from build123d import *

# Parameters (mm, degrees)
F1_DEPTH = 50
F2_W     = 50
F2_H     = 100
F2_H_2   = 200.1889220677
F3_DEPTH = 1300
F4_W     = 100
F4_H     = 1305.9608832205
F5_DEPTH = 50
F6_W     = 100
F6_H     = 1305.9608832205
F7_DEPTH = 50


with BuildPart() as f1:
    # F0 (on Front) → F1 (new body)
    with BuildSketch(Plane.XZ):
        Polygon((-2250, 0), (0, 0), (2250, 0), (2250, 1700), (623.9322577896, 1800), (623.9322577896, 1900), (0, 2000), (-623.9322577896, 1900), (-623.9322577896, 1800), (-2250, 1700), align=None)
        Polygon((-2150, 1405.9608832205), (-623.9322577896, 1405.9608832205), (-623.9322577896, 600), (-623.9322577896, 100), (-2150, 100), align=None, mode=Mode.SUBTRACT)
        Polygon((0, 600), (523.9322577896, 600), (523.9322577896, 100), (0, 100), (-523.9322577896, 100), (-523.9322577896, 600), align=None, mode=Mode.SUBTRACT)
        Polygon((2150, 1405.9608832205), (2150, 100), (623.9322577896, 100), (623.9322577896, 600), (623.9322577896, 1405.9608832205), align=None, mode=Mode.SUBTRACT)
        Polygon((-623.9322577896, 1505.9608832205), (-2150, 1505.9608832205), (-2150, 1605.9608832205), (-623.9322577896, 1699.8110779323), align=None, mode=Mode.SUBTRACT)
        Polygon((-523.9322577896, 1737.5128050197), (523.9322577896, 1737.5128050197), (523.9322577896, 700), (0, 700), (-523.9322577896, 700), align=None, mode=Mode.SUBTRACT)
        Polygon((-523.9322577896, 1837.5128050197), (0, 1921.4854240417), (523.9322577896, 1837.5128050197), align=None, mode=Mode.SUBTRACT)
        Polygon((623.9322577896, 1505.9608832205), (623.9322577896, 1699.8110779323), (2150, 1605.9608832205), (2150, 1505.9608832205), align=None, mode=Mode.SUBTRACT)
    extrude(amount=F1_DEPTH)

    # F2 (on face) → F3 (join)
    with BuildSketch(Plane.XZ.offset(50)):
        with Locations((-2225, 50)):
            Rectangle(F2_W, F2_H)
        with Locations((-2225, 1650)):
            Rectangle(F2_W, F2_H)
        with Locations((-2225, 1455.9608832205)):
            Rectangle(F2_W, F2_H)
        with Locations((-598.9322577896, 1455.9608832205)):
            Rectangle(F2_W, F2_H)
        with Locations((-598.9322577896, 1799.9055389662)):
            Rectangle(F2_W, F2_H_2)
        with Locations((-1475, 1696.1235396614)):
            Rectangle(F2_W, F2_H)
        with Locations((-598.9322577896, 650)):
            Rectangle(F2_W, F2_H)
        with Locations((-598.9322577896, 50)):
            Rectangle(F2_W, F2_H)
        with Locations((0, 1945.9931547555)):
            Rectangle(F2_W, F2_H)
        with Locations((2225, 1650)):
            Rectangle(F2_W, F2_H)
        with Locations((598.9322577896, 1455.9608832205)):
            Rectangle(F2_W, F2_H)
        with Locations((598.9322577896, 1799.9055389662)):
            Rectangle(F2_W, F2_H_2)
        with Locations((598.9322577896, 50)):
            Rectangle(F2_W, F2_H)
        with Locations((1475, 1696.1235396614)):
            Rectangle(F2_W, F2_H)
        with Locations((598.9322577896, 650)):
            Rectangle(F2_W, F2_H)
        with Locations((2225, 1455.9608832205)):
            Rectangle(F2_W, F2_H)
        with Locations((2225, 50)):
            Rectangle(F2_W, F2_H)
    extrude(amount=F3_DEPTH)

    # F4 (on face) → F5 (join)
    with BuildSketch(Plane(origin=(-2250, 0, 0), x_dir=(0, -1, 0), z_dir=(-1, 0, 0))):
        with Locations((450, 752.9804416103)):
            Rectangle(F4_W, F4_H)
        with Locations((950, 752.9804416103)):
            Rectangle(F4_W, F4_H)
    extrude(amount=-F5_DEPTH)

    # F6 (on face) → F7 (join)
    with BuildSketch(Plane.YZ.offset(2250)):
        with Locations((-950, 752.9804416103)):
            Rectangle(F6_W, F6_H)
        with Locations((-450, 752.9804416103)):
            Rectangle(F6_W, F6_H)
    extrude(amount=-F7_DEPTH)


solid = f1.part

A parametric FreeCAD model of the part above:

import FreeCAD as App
import Part
import Sketcher
from FreeCAD import Vector
Q = App.Units.Quantity

doc = App.newDocument("Part")
body = doc.addObject("PartDesign::Body", "Body")

sketch1 = doc.addObject("Sketcher::SketchObject", "Sketch")
body.addObject(sketch1)
sketch1.AttachmentSupport = (doc.XZ_Plane, [""])
sketch1.MapMode = "FlatFace"
sketch1.addGeometry(Part.LineSegment(Vector(-2250, 0, 0), Vector(2250, 0, 0)), False)
sketch1.addGeometry(Part.LineSegment(Vector(2250, 0, 0), Vector(2250, 1700, 0)), False)
sketch1.addGeometry(Part.LineSegment(Vector(2250, 1700, 0), Vector(624, 1800, 0)), False)
sketch1.addGeometry(Part.LineSegment(Vector(624, 1800, 0), Vector(624, 1900, 0)), False)
sketch1.addGeometry(Part.LineSegment(Vector(624, 1900, 0), Vector(0, 2000, 0)), False)
sketch1.addGeometry(Part.LineSegment(Vector(0, 2000, 0), Vector(-624, 1900, 0)), False)
sketch1.addGeometry(Part.LineSegment(Vector(-624, 1900, 0), Vector(-624, 1800, 0)), False)
sketch1.addGeometry(Part.LineSegment(Vector(-624, 1800, 0), Vector(-2250, 1700, 0)), False)
sketch1.addGeometry(Part.LineSegment(Vector(-2250, 1700, 0), Vector(-2250, 0, 0)), False)
sketch1.addGeometry(Part.LineSegment(Vector(-2150, 100, 0), Vector(-2150, 1406, 0)), False)
sketch1.addGeometry(Part.LineSegment(Vector(-2150, 1406, 0), Vector(-624, 1406, 0)), False)
sketch1.addGeometry(Part.LineSegment(Vector(-624, 1406, 0), Vector(-624, 100, 0)), False)
sketch1.addGeometry(Part.LineSegment(Vector(-624, 100, 0), Vector(-2150, 100, 0)), False)
sketch1.addGeometry(Part.LineSegment(Vector(-524, 600, 0), Vector(524, 600, 0)), False)
sketch1.addGeometry(Part.LineSegment(Vector(524, 600, 0), Vector(524, 100, 0)), False)
sketch1.addGeometry(Part.LineSegment(Vector(524, 100, 0), Vector(-524, 100, 0)), False)
sketch1.addGeometry(Part.LineSegment(Vector(-524, 100, 0), Vector(-524, 600, 0)), False)
sketch1.addGeometry(Part.LineSegment(Vector(624, 1406, 0), Vector(2150, 1406, 0)), False)
sketch1.addGeometry(Part.LineSegment(Vector(2150, 1406, 0), Vector(2150, 100, 0)), False)
sketch1.addGeometry(Part.LineSegment(Vector(2150, 100, 0), Vector(624, 100, 0)), False)
sketch1.addGeometry(Part.LineSegment(Vector(624, 100, 0), Vector(624, 1406, 0)), False)
sketch1.addGeometry(Part.LineSegment(Vector(-624, 1700, 0), Vector(-624, 1506, 0)), False)
sketch1.addGeometry(Part.LineSegment(Vector(-624, 1506, 0), Vector(-2150, 1506, 0)), False)
sketch1.addGeometry(Part.LineSegment(Vector(-2150, 1506, 0), Vector(-2150, 1606, 0)), False)
sketch1.addGeometry(Part.LineSegment(Vector(-2150, 1606, 0), Vector(-624, 1700, 0)), False)
sketch1.addGeometry(Part.LineSegment(Vector(-524, 700, 0), Vector(-524, 1738, 0)), False)
sketch1.addGeometry(Part.LineSegment(Vector(-524, 1738, 0), Vector(524, 1738, 0)), False)
sketch1.addGeometry(Part.LineSegment(Vector(524, 1738, 0), Vector(524, 700, 0)), False)
sketch1.addGeometry(Part.LineSegment(Vector(524, 700, 0), Vector(-524, 700, 0)), False)
sketch1.addGeometry(Part.LineSegment(Vector(524, 1838, 0), Vector(-524, 1838, 0)), False)
sketch1.addGeometry(Part.LineSegment(Vector(-524, 1838, 0), Vector(0, 1921, 0)), False)
sketch1.addGeometry(Part.LineSegment(Vector(0, 1921, 0), Vector(524, 1838, 0)), False)
sketch1.addGeometry(Part.LineSegment(Vector(2150, 1506, 0), Vector(624, 1506, 0)), False)
sketch1.addGeometry(Part.LineSegment(Vector(624, 1506, 0), Vector(624, 1700, 0)), False)
sketch1.addGeometry(Part.LineSegment(Vector(624, 1700, 0), Vector(2150, 1606, 0)), False)
sketch1.addGeometry(Part.LineSegment(Vector(2150, 1606, 0), Vector(2150, 1506, 0)), False)
sketch1.addConstraint(Sketcher.Constraint("Coincident", 0, 2, 1, 1))
sketch1.addConstraint(Sketcher.Constraint("Coincident", 1, 2, 2, 1))
sketch1.addConstraint(Sketcher.Constraint("Coincident", 2, 2, 3, 1))
sketch1.addConstraint(Sketcher.Constraint("Coincident", 3, 2, 4, 1))
sketch1.addConstraint(Sketcher.Constraint("Coincident", 4, 2, 5, 1))
sketch1.addConstraint(Sketcher.Constraint("Coincident", 5, 2, 6, 1))
sketch1.addConstraint(Sketcher.Constraint("Coincident", 6, 2, 7, 1))
sketch1.addConstraint(Sketcher.Constraint("Coincident", 7, 2, 8, 1))
sketch1.addConstraint(Sketcher.Constraint("Coincident", 8, 2, 0, 1))
sketch1.addConstraint(Sketcher.Constraint("Coincident", 9, 2, 10, 1))
sketch1.addConstraint(Sketcher.Constraint("Coincident", 10, 2, 11, 1))
sketch1.addConstraint(Sketcher.Constraint("Coincident", 11, 2, 12, 1))
sketch1.addConstraint(Sketcher.Constraint("Coincident", 12, 2, 9, 1))
sketch1.addConstraint(Sketcher.Constraint("Coincident", 13, 2, 14, 1))
sketch1.addConstraint(Sketcher.Constraint("Coincident", 14, 2, 15, 1))
sketch1.addConstraint(Sketcher.Constraint("Coincident", 15, 2, 16, 1))
sketch1.addConstraint(Sketcher.Constraint("Coincident", 16, 2, 13, 1))
sketch1.addConstraint(Sketcher.Constraint("Coincident", 17, 2, 18, 1))
sketch1.addConstraint(Sketcher.Constraint("Coincident", 18, 2, 19, 1))
sketch1.addConstraint(Sketcher.Constraint("Coincident", 19, 2, 20, 1))
sketch1.addConstraint(Sketcher.Constraint("Coincident", 20, 2, 17, 1))
sketch1.addConstraint(Sketcher.Constraint("Coincident", 21, 2, 22, 1))
sketch1.addConstraint(Sketcher.Constraint("Coincident", 22, 2, 23, 1))
sketch1.addConstraint(Sketcher.Constraint("Coincident", 23, 2, 24, 1))
sketch1.addConstraint(Sketcher.Constraint("Coincident", 24, 2, 21, 1))
sketch1.addConstraint(Sketcher.Constraint("Coincident", 25, 2, 26, 1))
sketch1.addConstraint(Sketcher.Constraint("Coincident", 26, 2, 27, 1))
sketch1.addConstraint(Sketcher.Constraint("Coincident", 27, 2, 28, 1))
sketch1.addConstraint(Sketcher.Constraint("Coincident", 28, 2, 25, 1))
sketch1.addConstraint(Sketcher.Constraint("Coincident", 29, 2, 30, 1))
sketch1.addConstraint(Sketcher.Constraint("Coincident", 30, 2, 31, 1))
sketch1.addConstraint(Sketcher.Constraint("Coincident", 31, 2, 29, 1))
sketch1.addConstraint(Sketcher.Constraint("Coincident", 32, 2, 33, 1))
sketch1.addConstraint(Sketcher.Constraint("Coincident", 33, 2, 34, 1))
sketch1.addConstraint(Sketcher.Constraint("Coincident", 34, 2, 35, 1))
sketch1.addConstraint(Sketcher.Constraint("Coincident", 35, 2, 32, 1))
sketch1.addConstraint(Sketcher.Constraint("Horizontal", 0))
sketch1.addConstraint(Sketcher.Constraint("Vertical", 1))
sketch1.addConstraint(Sketcher.Constraint("Vertical", 3))
sketch1.addConstraint(Sketcher.Constraint("Vertical", 6))
sketch1.addConstraint(Sketcher.Constraint("Vertical", 8))
sketch1.addConstraint(Sketcher.Constraint("Vertical", 9))
sketch1.addConstraint(Sketcher.Constraint("Horizontal", 10))
sketch1.addConstraint(Sketcher.Constraint("Vertical", 11))
sketch1.addConstraint(Sketcher.Constraint("Horizontal", 12))
sketch1.addConstraint(Sketcher.Constraint("Horizontal", 13))
sketch1.addConstraint(Sketcher.Constraint("Vertical", 14))
sketch1.addConstraint(Sketcher.Constraint("Horizontal", 15))
sketch1.addConstraint(Sketcher.Constraint("Vertical", 16))
sketch1.addConstraint(Sketcher.Constraint("Horizontal", 17))
sketch1.addConstraint(Sketcher.Constraint("Vertical", 18))
sketch1.addConstraint(Sketcher.Constraint("Horizontal", 19))
sketch1.addConstraint(Sketcher.Constraint("Vertical", 20))
sketch1.addConstraint(Sketcher.Constraint("Vertical", 21))
sketch1.addConstraint(Sketcher.Constraint("Horizontal", 22))
sketch1.addConstraint(Sketcher.Constraint("Vertical", 23))
sketch1.addConstraint(Sketcher.Constraint("Vertical", 25))
sketch1.addConstraint(Sketcher.Constraint("Horizontal", 26))
sketch1.addConstraint(Sketcher.Constraint("Vertical", 27))
sketch1.addConstraint(Sketcher.Constraint("Horizontal", 28))
sketch1.addConstraint(Sketcher.Constraint("Horizontal", 29))
sketch1.addConstraint(Sketcher.Constraint("Horizontal", 32))
sketch1.addConstraint(Sketcher.Constraint("Vertical", 33))
sketch1.addConstraint(Sketcher.Constraint("Vertical", 35))
sketch1.addConstraint(Sketcher.Constraint("Symmetric", 0, 2, 8, 2, -1, 1))
sketch1.addConstraint(Sketcher.Constraint("Symmetric", 3, 2, 5, 2, -2))
sketch1.addConstraint(Sketcher.Constraint("Symmetric", 9, 2, 17, 2, -2))
sketch1.addConstraint(Sketcher.Constraint("Symmetric", 11, 2, 19, 2, -2))
sketch1.addConstraint(Sketcher.Constraint("Symmetric", 21, 2, 32, 2, -2))
sketch1.addConstraint(Sketcher.Constraint("Symmetric", 23, 2, 34, 2, -2))
sketch1.addConstraint(Sketcher.Constraint("PointOnObject", 4, 2, -2))
sketch1.addConstraint(Sketcher.Constraint("PointOnObject", 30, 2, -2))
sketch1.addConstraint(Sketcher.Constraint("Parallel", 7, 24))
sketch1.addConstraint(Sketcher.Constraint("Parallel", 5, 30))
sketch1.addConstraint(Sketcher.Constraint("Parallel", 4, 31))
sketch1.addConstraint(Sketcher.Constraint("Parallel", 2, 34))
sketch1.addConstraint(Sketcher.Constraint("Horizontal", 2, 2, 6, 2))
sketch1.addConstraint(Sketcher.Constraint("Horizontal", 1, 2, 7, 2))
sketch1.addConstraint(Sketcher.Constraint("Horizontal", 12, 2, 14, 2))
sketch1.addConstraint(Sketcher.Constraint("Vertical", 6, 2, 10, 2))
sketch1.addConstraint(Sketcher.Constraint("Vertical", 11, 2, 21, 2))
sketch1.addConstraint(Sketcher.Constraint("Vertical", 12, 2, 22, 2))
sketch1.addConstraint(Sketcher.Constraint("Vertical", 16, 2, 25, 2))
sketch1.addConstraint(Sketcher.Constraint("Vertical", 14, 2, 26, 2))
sketch1.addConstraint(Sketcher.Constraint("Vertical", 28, 2, 29, 2))
sketch1.addConstraint(Sketcher.Constraint("Vertical", 27, 2, 31, 2))
sketch1.addConstraint(Sketcher.Constraint("Equal", 6, 23))
sketch1.addConstraint(Sketcher.Constraint("DistanceX", 0, 1, 0, 2, Q("4500 mm")))
sketch1.addConstraint(Sketcher.Constraint("DistanceY", 1, 1, 1, 2, Q("1700 mm")))
sketch1.addConstraint(Sketcher.Constraint("DistanceY", 3, 1, 3, 2, Q("100 mm")))
sketch1.addConstraint(Sketcher.Constraint("DistanceY", 14, 2, 14, 1, Q("500 mm")))
sketch1.addConstraint(Sketcher.Constraint("DistanceY", -1, 1, 2, 2, Q("1800 mm")))
sketch1.addConstraint(Sketcher.Constraint("DistanceY", -1, 1, 4, 2, Q("2000 mm")))
sketch1.addConstraint(Sketcher.Constraint("DistanceX", 9, 2, -1, 1, Q("2150 mm")))
sketch1.addConstraint(Sketcher.Constraint("DistanceY", -1, 1, 11, 2, Q("100 mm")))
sketch1.addConstraint(Sketcher.Constraint("DistanceY", -1, 1, 27, 2, Q("700 mm")))
sketch1.addConstraint(Sketcher.Constraint("DistanceX", 13, 2, 2, 2, Q("100 mm")))
sketch1.addConstraint(Sketcher.Constraint("DistanceY", 10, 2, 21, 2, Q("100 mm")))
sketch1.addConstraint(Sketcher.Constraint("DistanceY", 25, 2, 29, 2, Q("100 mm")))
sketch1.addConstraint(Sketcher.Constraint("Distance", 24, Q("1528.950821 mm")))
sketch1.addConstraint(Sketcher.Constraint("DistanceY", 9, 1, 9, 2, Q("1305.960883 mm")))
sketch1.addConstraint(Sketcher.Constraint("DistanceY", 25, 1, 25, 2, Q("1037.512805 mm")))
pad1 = doc.addObject("PartDesign::Pad", "Pad")
body.addObject(pad1)
pad1.Profile = sketch1
pad1.Length = 50

sketch2 = doc.addObject("Sketcher::SketchObject", "Sketch001")
body.addObject(sketch2)
sketch2.AttachmentSupport = (doc.XZ_Plane, [""])
sketch2.MapMode = "FlatFace"
sketch2.AttachmentOffset = App.Placement(Vector(0, 0, 50), App.Rotation())
sketch2.addGeometry(Part.LineSegment(Vector(-2250, 100, 0), Vector(-2250, 0, 0)), False)
sketch2.addGeometry(Part.LineSegment(Vector(-2250, 0, 0), Vector(-2200, 0, 0)), False)
sketch2.addGeometry(Part.LineSegment(Vector(-2200, 0, 0), Vector(-2200, 100, 0)), False)
sketch2.addGeometry(Part.LineSegment(Vector(-2200, 100, 0), Vector(-2250, 100, 0)), False)
sketch2.addGeometry(Part.LineSegment(Vector(-2250, 1700, 0), Vector(-2250, 1600, 0)), False)
sketch2.addGeometry(Part.LineSegment(Vector(-2250, 1600, 0), Vector(-2200, 1600, 0)), False)
sketch2.addGeometry(Part.LineSegment(Vector(-2200, 1600, 0), Vector(-2200, 1700, 0)), False)
sketch2.addGeometry(Part.LineSegment(Vector(-2200, 1700, 0), Vector(-2250, 1700, 0)), False)
sketch2.addGeometry(Part.LineSegment(Vector(-2250, 1506, 0), Vector(-2250, 1406, 0)), False)
sketch2.addGeometry(Part.LineSegment(Vector(-2250, 1406, 0), Vector(-2200, 1406, 0)), False)
sketch2.addGeometry(Part.LineSegment(Vector(-2200, 1406, 0), Vector(-2200, 1506, 0)), False)
sketch2.addGeometry(Part.LineSegment(Vector(-2200, 1506, 0), Vector(-2250, 1506, 0)), False)
sketch2.addGeometry(Part.LineSegment(Vector(-624, 1506, 0), Vector(-624, 1406, 0)), False)
sketch2.addGeometry(Part.LineSegment(Vector(-624, 1406, 0), Vector(-574, 1406, 0)), False)
sketch2.addGeometry(Part.LineSegment(Vector(-574, 1406, 0), Vector(-574, 1506, 0)), False)
sketch2.addGeometry(Part.LineSegment(Vector(-574, 1506, 0), Vector(-624, 1506, 0)), False)
sketch2.addGeometry(Part.LineSegment(Vector(-624, 1900, 0), Vector(-624, 1700, 0)), False)
sketch2.addGeometry(Part.LineSegment(Vector(-624, 1700, 0), Vector(-574, 1700, 0)), False)
sketch2.addGeometry(Part.LineSegment(Vector(-574, 1700, 0), Vector(-574, 1900, 0)), False)
sketch2.addGeometry(Part.LineSegment(Vector(-574, 1900, 0), Vector(-624, 1900, 0)), False)
sketch2.addGeometry(Part.LineSegment(Vector(-1500, 1746, 0), Vector(-1500, 1646, 0)), False)
sketch2.addGeometry(Part.LineSegment(Vector(-1500, 1646, 0), Vector(-1450, 1646, 0)), False)
sketch2.addGeometry(Part.LineSegment(Vector(-1450, 1646, 0), Vector(-1450, 1746, 0)), False)
sketch2.addGeometry(Part.LineSegment(Vector(-1450, 1746, 0), Vector(-1500, 1746, 0)), False)
sketch2.addGeometry(Part.LineSegment(Vector(-624, 700, 0), Vector(-624, 600, 0)), False)
sketch2.addGeometry(Part.LineSegment(Vector(-624, 600, 0), Vector(-574, 600, 0)), False)
sketch2.addGeometry(Part.LineSegment(Vector(-574, 600, 0), Vector(-574, 700, 0)), False)
sketch2.addGeometry(Part.LineSegment(Vector(-574, 700, 0), Vector(-624, 700, 0)), False)
sketch2.addGeometry(Part.LineSegment(Vector(-624, 100, 0), Vector(-624, 0, 0)), False)
sketch2.addGeometry(Part.LineSegment(Vector(-624, 0, 0), Vector(-574, 0, 0)), False)
sketch2.addGeometry(Part.LineSegment(Vector(-574, 0, 0), Vector(-574, 100, 0)), False)
sketch2.addGeometry(Part.LineSegment(Vector(-574, 100, 0), Vector(-624, 100, 0)), False)
sketch2.addGeometry(Part.LineSegment(Vector(-25, 1996, 0), Vector(-25, 1896, 0)), False)
sketch2.addGeometry(Part.LineSegment(Vector(-25, 1896, 0), Vector(25, 1896, 0)), False)
sketch2.addGeometry(Part.LineSegment(Vector(25, 1896, 0), Vector(25, 1996, 0)), False)
sketch2.addGeometry(Part.LineSegment(Vector(25, 1996, 0), Vector(-25, 1996, 0)), False)
sketch2.addGeometry(Part.LineSegment(Vector(2200, 1700, 0), Vector(2200, 1600, 0)), False)
sketch2.addGeometry(Part.LineSegment(Vector(2200, 1600, 0), Vector(2250, 1600, 0)), False)
sketch2.addGeometry(Part.LineSegment(Vector(2250, 1600, 0), Vector(2250, 1700, 0)), False)
sketch2.addGeometry(Part.LineSegment(Vector(2250, 1700, 0), Vector(2200, 1700, 0)), False)
sketch2.addGeometry(Part.LineSegment(Vector(574, 1506, 0), Vector(574, 1406, 0)), False)
sketch2.addGeometry(Part.LineSegment(Vector(574, 1406, 0), Vector(624, 1406, 0)), False)
sketch2.addGeometry(Part.LineSegment(Vector(624, 1406, 0), Vector(624, 1506, 0)), False)
sketch2.addGeometry(Part.LineSegment(Vector(624, 1506, 0), Vector(574, 1506, 0)), False)
sketch2.addGeometry(Part.LineSegment(Vector(574, 1900, 0), Vector(574, 1700, 0)), False)
sketch2.addGeometry(Part.LineSegment(Vector(574, 1700, 0), Vector(624, 1700, 0)), False)
sketch2.addGeometry(Part.LineSegment(Vector(624, 1700, 0), Vector(624, 1900, 0)), False)
sketch2.addGeometry(Part.LineSegment(Vector(624, 1900, 0), Vector(574, 1900, 0)), False)
sketch2.addGeometry(Part.LineSegment(Vector(574, 100, 0), Vector(574, 0, 0)), False)
sketch2.addGeometry(Part.LineSegment(Vector(574, 0, 0), Vector(624, 0, 0)), False)
sketch2.addGeometry(Part.LineSegment(Vector(624, 0, 0), Vector(624, 100, 0)), False)
sketch2.addGeometry(Part.LineSegment(Vector(624, 100, 0), Vector(574, 100, 0)), False)
sketch2.addGeometry(Part.LineSegment(Vector(1450, 1746, 0), Vector(1450, 1646, 0)), False)
sketch2.addGeometry(Part.LineSegment(Vector(1450, 1646, 0), Vector(1500, 1646, 0)), False)
sketch2.addGeometry(Part.LineSegment(Vector(1500, 1646, 0), Vector(1500, 1746, 0)), False)
sketch2.addGeometry(Part.LineSegment(Vector(1500, 1746, 0), Vector(1450, 1746, 0)), False)
sketch2.addGeometry(Part.LineSegment(Vector(574, 700, 0), Vector(574, 600, 0)), False)
sketch2.addGeometry(Part.LineSegment(Vector(574, 600, 0), Vector(624, 600, 0)), False)
sketch2.addGeometry(Part.LineSegment(Vector(624, 600, 0), Vector(624, 700, 0)), False)
sketch2.addGeometry(Part.LineSegment(Vector(624, 700, 0), Vector(574, 700, 0)), False)
sketch2.addGeometry(Part.LineSegment(Vector(2200, 1506, 0), Vector(2200, 1406, 0)), False)
sketch2.addGeometry(Part.LineSegment(Vector(2200, 1406, 0), Vector(2250, 1406, 0)), False)
sketch2.addGeometry(Part.LineSegment(Vector(2250, 1406, 0), Vector(2250, 1506, 0)), False)
sketch2.addGeometry(Part.LineSegment(Vector(2250, 1506, 0), Vector(2200, 1506, 0)), False)
sketch2.addGeometry(Part.LineSegment(Vector(2200, 100, 0), Vector(2200, 0, 0)), False)
sketch2.addGeometry(Part.LineSegment(Vector(2200, 0, 0), Vector(2250, 0, 0)), False)
sketch2.addGeometry(Part.LineSegment(Vector(2250, 0, 0), Vector(2250, 100, 0)), False)
sketch2.addGeometry(Part.LineSegment(Vector(2250, 100, 0), Vector(2200, 100, 0)), False)
sketch2.addConstraint(Sketcher.Constraint("Coincident", 0, 2, 1, 1))
sketch2.addConstraint(Sketcher.Constraint("Coincident", 1, 2, 2, 1))
sketch2.addConstraint(Sketcher.Constraint("Coincident", 2, 2, 3, 1))
sketch2.addConstraint(Sketcher.Constraint("Coincident", 3, 2, 0, 1))
sketch2.addConstraint(Sketcher.Constraint("Coincident", 4, 2, 5, 1))
sketch2.addConstraint(Sketcher.Constraint("Coincident", 5, 2, 6, 1))
sketch2.addConstraint(Sketcher.Constraint("Coincident", 6, 2, 7, 1))
sketch2.addConstraint(Sketcher.Constraint("Coincident", 7, 2, 4, 1))
sketch2.addConstraint(Sketcher.Constraint("Coincident", 8, 2, 9, 1))
sketch2.addConstraint(Sketcher.Constraint("Coincident", 9, 2, 10, 1))
sketch2.addConstraint(Sketcher.Constraint("Coincident", 10, 2, 11, 1))
sketch2.addConstraint(Sketcher.Constraint("Coincident", 11, 2, 8, 1))
sketch2.addConstraint(Sketcher.Constraint("Coincident", 12, 2, 13, 1))
sketch2.addConstraint(Sketcher.Constraint("Coincident", 13, 2, 14, 1))
sketch2.addConstraint(Sketcher.Constraint("Coincident", 14, 2, 15, 1))
sketch2.addConstraint(Sketcher.Constraint("Coincident", 15, 2, 12, 1))
sketch2.addConstraint(Sketcher.Constraint("Coincident", 16, 2, 17, 1))
sketch2.addConstraint(Sketcher.Constraint("Coincident", 17, 2, 18, 1))
sketch2.addConstraint(Sketcher.Constraint("Coincident", 18, 2, 19, 1))
sketch2.addConstraint(Sketcher.Constraint("Coincident", 19, 2, 16, 1))
sketch2.addConstraint(Sketcher.Constraint("Coincident", 20, 2, 21, 1))
sketch2.addConstraint(Sketcher.Constraint("Coincident", 21, 2, 22, 1))
sketch2.addConstraint(Sketcher.Constraint("Coincident", 22, 2, 23, 1))
sketch2.addConstraint(Sketcher.Constraint("Coincident", 23, 2, 20, 1))
sketch2.addConstraint(Sketcher.Constraint("Coincident", 24, 2, 25, 1))
sketch2.addConstraint(Sketcher.Constraint("Coincident", 25, 2, 26, 1))
sketch2.addConstraint(Sketcher.Constraint("Coincident", 26, 2, 27, 1))
sketch2.addConstraint(Sketcher.Constraint("Coincident", 27, 2, 24, 1))
sketch2.addConstraint(Sketcher.Constraint("Coincident", 28, 2, 29, 1))
sketch2.addConstraint(Sketcher.Constraint("Coincident", 29, 2, 30, 1))
sketch2.addConstraint(Sketcher.Constraint("Coincident", 30, 2, 31, 1))
sketch2.addConstraint(Sketcher.Constraint("Coincident", 31, 2, 28, 1))
sketch2.addConstraint(Sketcher.Constraint("Coincident", 32, 2, 33, 1))
sketch2.addConstraint(Sketcher.Constraint("Coincident", 33, 2, 34, 1))
sketch2.addConstraint(Sketcher.Constraint("Coincident", 34, 2, 35, 1))
sketch2.addConstraint(Sketcher.Constraint("Coincident", 35, 2, 32, 1))
sketch2.addConstraint(Sketcher.Constraint("Coincident", 36, 2, 37, 1))
sketch2.addConstraint(Sketcher.Constraint("Coincident", 37, 2, 38, 1))
sketch2.addConstraint(Sketcher.Constraint("Coincident", 38, 2, 39, 1))
sketch2.addConstraint(Sketcher.Constraint("Coincident", 39, 2, 36, 1))
sketch2.addConstraint(Sketcher.Constraint("Coincident", 40, 2, 41, 1))
sketch2.addConstraint(Sketcher.Constraint("Coincident", 41, 2, 42, 1))
sketch2.addConstraint(Sketcher.Constraint("Coincident", 42, 2, 43, 1))
sketch2.addConstraint(Sketcher.Constraint("Coincident", 43, 2, 40, 1))
sketch2.addConstraint(Sketcher.Constraint("Coincident", 44, 2, 45, 1))
sketch2.addConstraint(Sketcher.Constraint("Coincident", 45, 2, 46, 1))
sketch2.addConstraint(Sketcher.Constraint("Coincident", 46, 2, 47, 1))
sketch2.addConstraint(Sketcher.Constraint("Coincident", 47, 2, 44, 1))
sketch2.addConstraint(Sketcher.Constraint("Coincident", 48, 2, 49, 1))
sketch2.addConstraint(Sketcher.Constraint("Coincident", 49, 2, 50, 1))
sketch2.addConstraint(Sketcher.Constraint("Coincident", 50, 2, 51, 1))
sketch2.addConstraint(Sketcher.Constraint("Coincident", 51, 2, 48, 1))
sketch2.addConstraint(Sketcher.Constraint("Coincident", 52, 2, 53, 1))
sketch2.addConstraint(Sketcher.Constraint("Coincident", 53, 2, 54, 1))
sketch2.addConstraint(Sketcher.Constraint("Coincident", 54, 2, 55, 1))
sketch2.addConstraint(Sketcher.Constraint("Coincident", 55, 2, 52, 1))
sketch2.addConstraint(Sketcher.Constraint("Coincident", 56, 2, 57, 1))
sketch2.addConstraint(Sketcher.Constraint("Coincident", 57, 2, 58, 1))
sketch2.addConstraint(Sketcher.Constraint("Coincident", 58, 2, 59, 1))
sketch2.addConstraint(Sketcher.Constraint("Coincident", 59, 2, 56, 1))
sketch2.addConstraint(Sketcher.Constraint("Coincident", 60, 2, 61, 1))
sketch2.addConstraint(Sketcher.Constraint("Coincident", 61, 2, 62, 1))
sketch2.addConstraint(Sketcher.Constraint("Coincident", 62, 2, 63, 1))
sketch2.addConstraint(Sketcher.Constraint("Coincident", 63, 2, 60, 1))
sketch2.addConstraint(Sketcher.Constraint("Coincident", 64, 2, 65, 1))
sketch2.addConstraint(Sketcher.Constraint("Coincident", 65, 2, 66, 1))
sketch2.addConstraint(Sketcher.Constraint("Coincident", 66, 2, 67, 1))
sketch2.addConstraint(Sketcher.Constraint("Coincident", 67, 2, 64, 1))
sketch2.addConstraint(Sketcher.Constraint("Vertical", 0))
sketch2.addConstraint(Sketcher.Constraint("Horizontal", 1))
sketch2.addConstraint(Sketcher.Constraint("Vertical", 2))
sketch2.addConstraint(Sketcher.Constraint("Horizontal", 3))
sketch2.addConstraint(Sketcher.Constraint("Vertical", 4))
sketch2.addConstraint(Sketcher.Constraint("Horizontal", 5))
sketch2.addConstraint(Sketcher.Constraint("Vertical", 6))
sketch2.addConstraint(Sketcher.Constraint("Horizontal", 7))
sketch2.addConstraint(Sketcher.Constraint("Vertical", 8))
sketch2.addConstraint(Sketcher.Constraint("Horizontal", 9))
sketch2.addConstraint(Sketcher.Constraint("Vertical", 10))
sketch2.addConstraint(Sketcher.Constraint("Horizontal", 11))
sketch2.addConstraint(Sketcher.Constraint("Vertical", 12))
sketch2.addConstraint(Sketcher.Constraint("Horizontal", 13))
sketch2.addConstraint(Sketcher.Constraint("Vertical", 14))
sketch2.addConstraint(Sketcher.Constraint("Horizontal", 15))
sketch2.addConstraint(Sketcher.Constraint("Vertical", 16))
sketch2.addConstraint(Sketcher.Constraint("Horizontal", 17))
sketch2.addConstraint(Sketcher.Constraint("Vertical", 18))
sketch2.addConstraint(Sketcher.Constraint("Horizontal", 19))
sketch2.addConstraint(Sketcher.Constraint("Vertical", 20))
sketch2.addConstraint(Sketcher.Constraint("Horizontal", 21))
sketch2.addConstraint(Sketcher.Constraint("Vertical", 22))
sketch2.addConstraint(Sketcher.Constraint("Horizontal", 23))
sketch2.addConstraint(Sketcher.Constraint("Vertical", 24))
sketch2.addConstraint(Sketcher.Constraint("Horizontal", 25))
sketch2.addConstraint(Sketcher.Constraint("Vertical", 26))
sketch2.addConstraint(Sketcher.Constraint("Horizontal", 27))
sketch2.addConstraint(Sketcher.Constraint("Vertical", 28))
sketch2.addConstraint(Sketcher.Constraint("Horizontal", 29))
sketch2.addConstraint(Sketcher.Constraint("Vertical", 30))
sketch2.addConstraint(Sketcher.Constraint("Horizontal", 31))
sketch2.addConstraint(Sketcher.Constraint("Vertical", 32))
sketch2.addConstraint(Sketcher.Constraint("Horizontal", 33))
sketch2.addConstraint(Sketcher.Constraint("Vertical", 34))
sketch2.addConstraint(Sketcher.Constraint("Horizontal", 35))
sketch2.addConstraint(Sketcher.Constraint("Vertical", 36))
sketch2.addConstraint(Sketcher.Constraint("Horizontal", 37))
sketch2.addConstraint(Sketcher.Constraint("Vertical", 38))
sketch2.addConstraint(Sketcher.Constraint("Horizontal", 39))
sketch2.addConstraint(Sketcher.Constraint("Vertical", 40))
sketch2.addConstraint(Sketcher.Constraint("Horizontal", 41))
sketch2.addConstraint(Sketcher.Constraint("Vertical", 42))
sketch2.addConstraint(Sketcher.Constraint("Horizontal", 43))
sketch2.addConstraint(Sketcher.Constraint("Vertical", 44))
sketch2.addConstraint(Sketcher.Constraint("Horizontal", 45))
sketch2.addConstraint(Sketcher.Constraint("Vertical", 46))
sketch2.addConstraint(Sketcher.Constraint("Horizontal", 47))
sketch2.addConstraint(Sketcher.Constraint("Vertical", 48))
sketch2.addConstraint(Sketcher.Constraint("Horizontal", 49))
sketch2.addConstraint(Sketcher.Constraint("Vertical", 50))
sketch2.addConstraint(Sketcher.Constraint("Horizontal", 51))
sketch2.addConstraint(Sketcher.Constraint("Vertical", 52))
sketch2.addConstraint(Sketcher.Constraint("Horizontal", 53))
sketch2.addConstraint(Sketcher.Constraint("Vertical", 54))
sketch2.addConstraint(Sketcher.Constraint("Horizontal", 55))
sketch2.addConstraint(Sketcher.Constraint("Vertical", 56))
sketch2.addConstraint(Sketcher.Constraint("Horizontal", 57))
sketch2.addConstraint(Sketcher.Constraint("Vertical", 58))
sketch2.addConstraint(Sketcher.Constraint("Horizontal", 59))
sketch2.addConstraint(Sketcher.Constraint("Vertical", 60))
sketch2.addConstraint(Sketcher.Constraint("Horizontal", 61))
sketch2.addConstraint(Sketcher.Constraint("Vertical", 62))
sketch2.addConstraint(Sketcher.Constraint("Horizontal", 63))
sketch2.addConstraint(Sketcher.Constraint("Vertical", 64))
sketch2.addConstraint(Sketcher.Constraint("Horizontal", 65))
sketch2.addConstraint(Sketcher.Constraint("Vertical", 66))
sketch2.addConstraint(Sketcher.Constraint("Horizontal", 67))
sketch2.addConstraint(Sketcher.Constraint("Symmetric", 29, 2, 48, 2, -1, 1))
sketch2.addConstraint(Sketcher.Constraint("Symmetric", 1, 2, 64, 2, -1, 1))
sketch2.addConstraint(Sketcher.Constraint("Symmetric", 5, 2, 36, 2, -2))
sketch2.addConstraint(Sketcher.Constraint("Symmetric", 7, 2, 38, 2, -2))
sketch2.addConstraint(Sketcher.Constraint("Symmetric", 13, 2, 40, 2, -2))
sketch2.addConstraint(Sketcher.Constraint("Symmetric", 15, 2, 42, 2, -2))
sketch2.addConstraint(Sketcher.Constraint("Symmetric", 17, 2, 44, 2, -2))
sketch2.addConstraint(Sketcher.Constraint("Symmetric", 19, 2, 46, 2, -2))
sketch2.addConstraint(Sketcher.Constraint("Symmetric", 28, 2, 49, 2, -2))
sketch2.addConstraint(Sketcher.Constraint("Symmetric", 21, 2, 52, 2, -2))
sketch2.addConstraint(Sketcher.Constraint("Symmetric", 23, 2, 54, 2, -2))
sketch2.addConstraint(Sketcher.Constraint("Symmetric", 25, 2, 56, 2, -2))
sketch2.addConstraint(Sketcher.Constraint("Symmetric", 27, 2, 58, 2, -2))
sketch2.addConstraint(Sketcher.Constraint("Symmetric", 9, 2, 60, 2, -2))
sketch2.addConstraint(Sketcher.Constraint("Symmetric", 11, 2, 62, 2, -2))
sketch2.addConstraint(Sketcher.Constraint("Symmetric", 0, 2, 65, 2, -2))
sketch2.addConstraint(Sketcher.Constraint("Horizontal", 9, 2, 12, 2))
sketch2.addConstraint(Sketcher.Constraint("Horizontal", 11, 2, 14, 2))
sketch2.addConstraint(Sketcher.Constraint("Horizontal", 3, 2, 30, 2))
sketch2.addConstraint(Sketcher.Constraint("Horizontal", 31, 2, 50, 2))
sketch2.addConstraint(Sketcher.Constraint("Horizontal", 51, 2, 66, 2))
sketch2.addConstraint(Sketcher.Constraint("Vertical", 3, 2, 4, 2))
sketch2.addConstraint(Sketcher.Constraint("Vertical", 2, 2, 5, 2))
sketch2.addConstraint(Sketcher.Constraint("Vertical", 7, 2, 8, 2))
sketch2.addConstraint(Sketcher.Constraint("Vertical", 6, 2, 9, 2))
sketch2.addConstraint(Sketcher.Constraint("Vertical", 15, 2, 16, 2))
sketch2.addConstraint(Sketcher.Constraint("Vertical", 14, 2, 17, 2))
sketch2.addConstraint(Sketcher.Constraint("Vertical", 19, 2, 24, 2))
sketch2.addConstraint(Sketcher.Constraint("Vertical", 18, 2, 25, 2))
sketch2.addConstraint(Sketcher.Constraint("Vertical", 27, 2, 28, 2))
sketch2.addConstraint(Sketcher.Constraint("Vertical", 26, 2, 29, 2))
sketch2.addConstraint(Sketcher.Constraint("Equal", 11, 13))
sketch2.addConstraint(Sketcher.Constraint("Equal", 19, 21))
sketch2.addConstraint(Sketcher.Constraint("Equal", 31, 33))
sketch2.addConstraint(Sketcher.Constraint("Equal", 2, 4))
sketch2.addConstraint(Sketcher.Constraint("Equal", 6, 8))
sketch2.addConstraint(Sketcher.Constraint("Equal", 14, 20))
sketch2.addConstraint(Sketcher.Constraint("Equal", 22, 24))
sketch2.addConstraint(Sketcher.Constraint("Equal", 30, 32))
sketch2.addConstraint(Sketcher.Constraint("DistanceX", 1, 1, 1, 2, Q("50 mm")))
sketch2.addConstraint(Sketcher.Constraint("DistanceY", 0, 2, 0, 1, Q("100 mm")))
sketch2.addConstraint(Sketcher.Constraint("DistanceX", 0, 2, -1, 1, Q("2250 mm")))
sketch2.addConstraint(Sketcher.Constraint("DistanceY", -1, 1, 4, 2, Q("1600 mm")))
sketch2.addConstraint(Sketcher.Constraint("DistanceY", -1, 1, 18, 2, Q("1900 mm")))
sketch2.addConstraint(Sketcher.Constraint("DistanceX", 20, 2, -1, 1, Q("1500 mm")))
sketch2.addConstraint(Sketcher.Constraint("DistanceY", -1, 1, 24, 2, Q("600 mm")))
sketch2.addConstraint(Sketcher.Constraint("DistanceX", 32, 2, -1, 1, Q("25 mm")))
sketch2.addConstraint(Sketcher.Constraint("DistanceY", 16, 2, 16, 1, Q("200.188922 mm")))
sketch2.addConstraint(Sketcher.Constraint("DistanceY", -1, 1, 20, 2, Q("1646.12354 mm")))
sketch2.addConstraint(Sketcher.Constraint("DistanceY", -1, 1, 8, 2, Q("1405.960883 mm")))
sketch2.addConstraint(Sketcher.Constraint("DistanceX", 12, 2, -1, 1, Q("623.932258 mm")))
sketch2.addConstraint(Sketcher.Constraint("DistanceY", -1, 1, 32, 2, Q("1895.993155 mm")))
pad2 = doc.addObject("PartDesign::Pad", "Pad001")
body.addObject(pad2)
pad2.Profile = sketch2
pad2.Length = 1300

sketch3 = doc.addObject("Sketcher::SketchObject", "Sketch002")
body.addObject(sketch3)
sketch3.AttachmentSupport = (doc.YZ_Plane, [""])
sketch3.MapMode = "FlatFace"
sketch3.AttachmentOffset = App.Placement(Vector(0, 0, -2250), App.Rotation())
sketch3.addGeometry(Part.LineSegment(Vector(-400, 1406, 0), Vector(-400, 100, 0)), False)
sketch3.addGeometry(Part.LineSegment(Vector(-400, 100, 0), Vector(-500, 100, 0)), False)
sketch3.addGeometry(Part.LineSegment(Vector(-500, 100, 0), Vector(-500, 1406, 0)), False)
sketch3.addGeometry(Part.LineSegment(Vector(-500, 1406, 0), Vector(-400, 1406, 0)), False)
sketch3.addGeometry(Part.LineSegment(Vector(-900, 1406, 0), Vector(-900, 100, 0)), False)
sketch3.addGeometry(Part.LineSegment(Vector(-900, 100, 0), Vector(-1000, 100, 0)), False)
sketch3.addGeometry(Part.LineSegment(Vector(-1000, 100, 0), Vector(-1000, 1406, 0)), False)
sketch3.addGeometry(Part.LineSegment(Vector(-1000, 1406, 0), Vector(-900, 1406, 0)), False)
sketch3.addConstraint(Sketcher.Constraint("Coincident", 0, 2, 1, 1))
sketch3.addConstraint(Sketcher.Constraint("Coincident", 1, 2, 2, 1))
sketch3.addConstraint(Sketcher.Constraint("Coincident", 2, 2, 3, 1))
sketch3.addConstraint(Sketcher.Constraint("Coincident", 3, 2, 0, 1))
sketch3.addConstraint(Sketcher.Constraint("Coincident", 4, 2, 5, 1))
sketch3.addConstraint(Sketcher.Constraint("Coincident", 5, 2, 6, 1))
sketch3.addConstraint(Sketcher.Constraint("Coincident", 6, 2, 7, 1))
sketch3.addConstraint(Sketcher.Constraint("Coincident", 7, 2, 4, 1))
sketch3.addConstraint(Sketcher.Constraint("Vertical", 0))
sketch3.addConstraint(Sketcher.Constraint("Horizontal", 1))
sketch3.addConstraint(Sketcher.Constraint("Vertical", 2))
sketch3.addConstraint(Sketcher.Constraint("Horizontal", 3))
sketch3.addConstraint(Sketcher.Constraint("Vertical", 4))
sketch3.addConstraint(Sketcher.Constraint("Horizontal", 5))
sketch3.addConstraint(Sketcher.Constraint("Vertical", 6))
sketch3.addConstraint(Sketcher.Constraint("Horizontal", 7))
sketch3.addConstraint(Sketcher.Constraint("Horizontal", 1, 2, 4, 2))
sketch3.addConstraint(Sketcher.Constraint("Horizontal", 3, 2, 6, 2))
sketch3.addConstraint(Sketcher.Constraint("Equal", 3, 5))
sketch3.addConstraint(Sketcher.Constraint("DistanceX", 1, 2, 1, 1, Q("100 mm")))
sketch3.addConstraint(Sketcher.Constraint("DistanceX", 0, 2, -1, 1, Q("400 mm")))
sketch3.addConstraint(Sketcher.Constraint("DistanceY", -1, 1, 0, 2, Q("100 mm")))
sketch3.addConstraint(Sketcher.Constraint("DistanceX", 4, 2, -1, 1, Q("900 mm")))
sketch3.addConstraint(Sketcher.Constraint("DistanceY", 0, 2, 0, 1, Q("1305.960883 mm")))
pad3 = doc.addObject("PartDesign::Pad", "Pad002")
body.addObject(pad3)
pad3.Profile = sketch3
pad3.Length = 50

sketch4 = doc.addObject("Sketcher::SketchObject", "Sketch003")
body.addObject(sketch4)
sketch4.AttachmentSupport = (doc.YZ_Plane, [""])
sketch4.MapMode = "FlatFace"
sketch4.AttachmentOffset = App.Placement(Vector(0, 0, 2250), App.Rotation())
sketch4.addGeometry(Part.LineSegment(Vector(-1000, 1406, 0), Vector(-1000, 100, 0)), False)
sketch4.addGeometry(Part.LineSegment(Vector(-1000, 100, 0), Vector(-900, 100, 0)), False)
sketch4.addGeometry(Part.LineSegment(Vector(-900, 100, 0), Vector(-900, 1406, 0)), False)
sketch4.addGeometry(Part.LineSegment(Vector(-900, 1406, 0), Vector(-1000, 1406, 0)), False)
sketch4.addGeometry(Part.LineSegment(Vector(-500, 1406, 0), Vector(-500, 100, 0)), False)
sketch4.addGeometry(Part.LineSegment(Vector(-500, 100, 0), Vector(-400, 100, 0)), False)
sketch4.addGeometry(Part.LineSegment(Vector(-400, 100, 0), Vector(-400, 1406, 0)), False)
sketch4.addGeometry(Part.LineSegment(Vector(-400, 1406, 0), Vector(-500, 1406, 0)), False)
sketch4.addConstraint(Sketcher.Constraint("Coincident", 0, 2, 1, 1))
sketch4.addConstraint(Sketcher.Constraint("Coincident", 1, 2, 2, 1))
sketch4.addConstraint(Sketcher.Constraint("Coincident", 2, 2, 3, 1))
sketch4.addConstraint(Sketcher.Constraint("Coincident", 3, 2, 0, 1))
sketch4.addConstraint(Sketcher.Constraint("Coincident", 4, 2, 5, 1))
sketch4.addConstraint(Sketcher.Constraint("Coincident", 5, 2, 6, 1))
sketch4.addConstraint(Sketcher.Constraint("Coincident", 6, 2, 7, 1))
sketch4.addConstraint(Sketcher.Constraint("Coincident", 7, 2, 4, 1))
sketch4.addConstraint(Sketcher.Constraint("Vertical", 0))
sketch4.addConstraint(Sketcher.Constraint("Horizontal", 1))
sketch4.addConstraint(Sketcher.Constraint("Vertical", 2))
sketch4.addConstraint(Sketcher.Constraint("Horizontal", 3))
sketch4.addConstraint(Sketcher.Constraint("Vertical", 4))
sketch4.addConstraint(Sketcher.Constraint("Horizontal", 5))
sketch4.addConstraint(Sketcher.Constraint("Vertical", 6))
sketch4.addConstraint(Sketcher.Constraint("Horizontal", 7))
sketch4.addConstraint(Sketcher.Constraint("Horizontal", 1, 2, 4, 2))
sketch4.addConstraint(Sketcher.Constraint("Horizontal", 3, 2, 6, 2))
sketch4.addConstraint(Sketcher.Constraint("Equal", 3, 5))
sketch4.addConstraint(Sketcher.Constraint("DistanceX", 1, 1, 1, 2, Q("100 mm")))
sketch4.addConstraint(Sketcher.Constraint("DistanceX", 0, 2, -1, 1, Q("1000 mm")))
sketch4.addConstraint(Sketcher.Constraint("DistanceY", -1, 1, 0, 2, Q("100 mm")))
sketch4.addConstraint(Sketcher.Constraint("DistanceX", 4, 2, -1, 1, Q("500 mm")))
sketch4.addConstraint(Sketcher.Constraint("DistanceY", 0, 2, 0, 1, Q("1305.960883 mm")))
pad4 = doc.addObject("PartDesign::Pad", "Pad003")
body.addObject(pad4)
pad4.Profile = sketch4
pad4.Length = 50
pad4.Reversed = True

doc.recompute()
